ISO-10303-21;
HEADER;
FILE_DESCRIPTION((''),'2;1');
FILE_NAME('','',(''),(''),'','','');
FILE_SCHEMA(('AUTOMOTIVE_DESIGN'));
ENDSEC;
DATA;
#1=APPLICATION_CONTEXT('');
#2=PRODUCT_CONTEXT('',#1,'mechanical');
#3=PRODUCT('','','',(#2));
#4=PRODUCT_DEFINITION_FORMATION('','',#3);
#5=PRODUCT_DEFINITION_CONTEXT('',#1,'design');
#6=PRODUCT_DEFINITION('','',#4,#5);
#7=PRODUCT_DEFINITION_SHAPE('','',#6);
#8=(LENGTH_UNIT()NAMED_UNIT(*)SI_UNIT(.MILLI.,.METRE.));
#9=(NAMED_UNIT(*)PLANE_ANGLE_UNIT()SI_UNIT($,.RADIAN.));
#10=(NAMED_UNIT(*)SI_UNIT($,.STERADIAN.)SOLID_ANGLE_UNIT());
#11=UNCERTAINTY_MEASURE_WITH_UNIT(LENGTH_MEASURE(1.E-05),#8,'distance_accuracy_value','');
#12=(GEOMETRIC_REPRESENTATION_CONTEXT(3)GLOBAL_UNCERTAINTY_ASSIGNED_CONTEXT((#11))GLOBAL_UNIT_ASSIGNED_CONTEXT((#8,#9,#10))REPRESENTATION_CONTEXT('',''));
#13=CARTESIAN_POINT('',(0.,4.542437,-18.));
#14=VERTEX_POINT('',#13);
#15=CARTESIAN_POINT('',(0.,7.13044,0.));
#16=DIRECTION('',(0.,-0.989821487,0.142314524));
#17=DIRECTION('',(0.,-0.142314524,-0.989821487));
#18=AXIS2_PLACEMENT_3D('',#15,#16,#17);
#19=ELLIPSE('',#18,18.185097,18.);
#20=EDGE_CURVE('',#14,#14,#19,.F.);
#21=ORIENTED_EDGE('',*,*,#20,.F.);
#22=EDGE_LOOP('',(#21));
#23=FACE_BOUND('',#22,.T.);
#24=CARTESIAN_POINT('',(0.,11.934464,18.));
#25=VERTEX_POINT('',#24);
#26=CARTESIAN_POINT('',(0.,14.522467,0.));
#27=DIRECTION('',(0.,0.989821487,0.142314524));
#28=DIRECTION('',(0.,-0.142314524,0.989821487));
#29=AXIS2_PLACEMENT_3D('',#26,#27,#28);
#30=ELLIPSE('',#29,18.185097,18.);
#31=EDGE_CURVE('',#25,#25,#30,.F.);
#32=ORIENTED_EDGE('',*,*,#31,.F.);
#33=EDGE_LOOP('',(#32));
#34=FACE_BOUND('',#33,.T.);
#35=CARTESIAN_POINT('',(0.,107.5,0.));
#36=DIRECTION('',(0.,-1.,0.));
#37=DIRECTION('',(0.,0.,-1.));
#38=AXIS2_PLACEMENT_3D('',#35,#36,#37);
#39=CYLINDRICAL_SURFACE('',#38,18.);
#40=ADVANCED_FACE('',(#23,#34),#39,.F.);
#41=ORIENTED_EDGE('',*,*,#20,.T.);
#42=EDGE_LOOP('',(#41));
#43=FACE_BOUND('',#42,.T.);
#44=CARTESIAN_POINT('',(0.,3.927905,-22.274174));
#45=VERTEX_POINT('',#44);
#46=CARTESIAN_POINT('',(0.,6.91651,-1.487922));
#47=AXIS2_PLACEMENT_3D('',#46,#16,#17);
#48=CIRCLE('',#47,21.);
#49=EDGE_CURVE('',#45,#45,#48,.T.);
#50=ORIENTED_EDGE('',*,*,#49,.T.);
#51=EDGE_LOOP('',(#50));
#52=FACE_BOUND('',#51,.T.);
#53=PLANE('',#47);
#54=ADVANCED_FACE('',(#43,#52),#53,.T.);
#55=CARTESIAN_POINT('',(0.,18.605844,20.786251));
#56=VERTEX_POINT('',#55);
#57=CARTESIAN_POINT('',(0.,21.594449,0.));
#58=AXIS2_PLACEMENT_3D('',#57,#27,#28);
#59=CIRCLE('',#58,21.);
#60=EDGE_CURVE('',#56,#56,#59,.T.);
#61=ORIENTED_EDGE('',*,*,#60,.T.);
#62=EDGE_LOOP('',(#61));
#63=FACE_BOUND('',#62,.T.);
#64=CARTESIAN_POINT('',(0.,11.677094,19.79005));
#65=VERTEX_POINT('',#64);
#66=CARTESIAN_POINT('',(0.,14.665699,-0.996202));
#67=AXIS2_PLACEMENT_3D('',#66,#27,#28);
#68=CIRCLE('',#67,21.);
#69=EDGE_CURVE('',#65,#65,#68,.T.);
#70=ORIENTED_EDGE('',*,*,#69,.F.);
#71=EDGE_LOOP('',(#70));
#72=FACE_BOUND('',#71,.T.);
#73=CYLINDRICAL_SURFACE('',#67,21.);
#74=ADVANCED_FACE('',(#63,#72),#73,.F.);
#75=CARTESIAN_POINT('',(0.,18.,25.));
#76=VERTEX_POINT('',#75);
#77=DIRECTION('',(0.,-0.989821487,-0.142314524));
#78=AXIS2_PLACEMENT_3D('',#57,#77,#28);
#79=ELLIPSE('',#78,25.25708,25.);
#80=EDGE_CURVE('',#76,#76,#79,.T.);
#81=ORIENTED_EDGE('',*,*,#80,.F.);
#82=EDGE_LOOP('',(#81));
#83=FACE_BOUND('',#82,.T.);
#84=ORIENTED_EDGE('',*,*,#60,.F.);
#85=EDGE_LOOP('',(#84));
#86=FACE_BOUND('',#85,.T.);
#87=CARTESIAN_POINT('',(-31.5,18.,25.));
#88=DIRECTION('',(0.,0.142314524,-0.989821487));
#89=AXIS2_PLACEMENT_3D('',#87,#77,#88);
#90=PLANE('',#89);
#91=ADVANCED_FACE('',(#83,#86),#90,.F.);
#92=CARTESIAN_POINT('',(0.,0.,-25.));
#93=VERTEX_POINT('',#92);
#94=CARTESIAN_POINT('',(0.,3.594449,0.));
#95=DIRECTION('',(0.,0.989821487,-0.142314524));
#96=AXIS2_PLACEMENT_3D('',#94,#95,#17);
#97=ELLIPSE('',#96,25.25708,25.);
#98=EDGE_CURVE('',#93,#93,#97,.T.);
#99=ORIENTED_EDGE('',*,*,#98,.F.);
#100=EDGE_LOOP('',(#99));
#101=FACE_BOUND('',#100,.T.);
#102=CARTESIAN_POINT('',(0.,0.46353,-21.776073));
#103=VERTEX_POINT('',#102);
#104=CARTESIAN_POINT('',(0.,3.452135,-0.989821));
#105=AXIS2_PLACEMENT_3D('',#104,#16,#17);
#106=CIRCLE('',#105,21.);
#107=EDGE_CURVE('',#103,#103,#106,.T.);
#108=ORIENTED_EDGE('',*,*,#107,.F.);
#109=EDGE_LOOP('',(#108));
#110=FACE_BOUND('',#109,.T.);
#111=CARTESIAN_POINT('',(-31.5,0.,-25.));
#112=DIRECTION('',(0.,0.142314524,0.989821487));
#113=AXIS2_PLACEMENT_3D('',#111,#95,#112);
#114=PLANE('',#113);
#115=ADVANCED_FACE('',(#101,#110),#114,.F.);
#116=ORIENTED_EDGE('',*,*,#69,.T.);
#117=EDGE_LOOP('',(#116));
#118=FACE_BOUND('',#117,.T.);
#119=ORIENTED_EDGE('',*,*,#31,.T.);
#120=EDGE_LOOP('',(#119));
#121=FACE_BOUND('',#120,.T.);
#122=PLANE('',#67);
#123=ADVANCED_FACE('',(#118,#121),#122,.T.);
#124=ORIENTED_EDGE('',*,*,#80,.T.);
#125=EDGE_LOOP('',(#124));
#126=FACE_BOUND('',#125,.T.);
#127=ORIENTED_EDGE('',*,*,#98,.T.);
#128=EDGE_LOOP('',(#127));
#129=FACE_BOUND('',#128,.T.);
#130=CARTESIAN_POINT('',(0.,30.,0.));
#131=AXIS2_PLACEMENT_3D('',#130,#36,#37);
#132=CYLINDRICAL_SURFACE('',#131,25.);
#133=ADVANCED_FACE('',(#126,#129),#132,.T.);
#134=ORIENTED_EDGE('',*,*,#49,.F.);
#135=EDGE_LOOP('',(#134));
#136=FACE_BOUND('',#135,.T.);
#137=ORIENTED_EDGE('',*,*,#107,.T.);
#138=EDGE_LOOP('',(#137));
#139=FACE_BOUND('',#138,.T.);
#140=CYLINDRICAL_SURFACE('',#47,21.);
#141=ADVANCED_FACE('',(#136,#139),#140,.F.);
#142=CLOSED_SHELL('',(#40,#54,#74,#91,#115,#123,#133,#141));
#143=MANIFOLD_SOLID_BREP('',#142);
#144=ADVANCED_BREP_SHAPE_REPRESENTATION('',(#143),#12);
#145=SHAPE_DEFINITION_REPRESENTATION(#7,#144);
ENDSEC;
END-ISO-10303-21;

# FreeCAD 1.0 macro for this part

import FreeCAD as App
import Part
import Sketcher
from FreeCAD import Vector

doc = App.newDocument("Part")
params = doc.addObject("Spreadsheet::Sheet", "Params")
for row, (alias, value) in enumerate([
    ("sketch1_diameter", "50 mm"),
    ("pad1_length", "30 mm"),
    ("sketch2_height", "50 mm"),
    ("pocket1_length", "63 mm"),
    ("sketch3_diameter", "42 mm"),
    ("pocket2_length", "7 mm"),
    ("sketch4_diameter", "42 mm"),
    ("pocket3_length", "3.5 mm"),
    ("sketch5_diameter", "36 mm"),
    ("pocket4_length", "107.5 mm"),
], start=1):
    params.set(f"A{row}", alias)
    params.set(f"B{row}", "=" + value)
    params.setAlias(f"B{row}", alias)

body = doc.addObject("PartDesign::Body", "Body")

sketch1 = doc.addObject("Sketcher::SketchObject", "Sketch")
body.addObject(sketch1)
sketch1.AttachmentSupport = (doc.XZ_Plane, [""])
sketch1.MapMode = "FlatFace"
sketch1.addGeometry(Part.Circle(Vector(0, 0, 0), Vector(0, 0, 1), 25), False)
sketch1.addConstraint(Sketcher.Constraint("Coincident", 0, 3, -1, 1))
sketch1.addConstraint(Sketcher.Constraint("Diameter", 0, 50.0))
sketch1.setExpression("Constraints[1]", "Params.sketch1_diameter")
pad1 = doc.addObject("PartDesign::Pad", "Pad")
body.addObject(pad1)
pad1.Profile = sketch1
pad1.setExpression("Length", "Params.pad1_length")
pad1.Reversed = True

sketch2 = doc.addObject("Sketcher::SketchObject", "Sketch001")
body.addObject(sketch2)
sketch2.AttachmentSupport = (doc.YZ_Plane, [""])
sketch2.MapMode = "FlatFace"
sketch2.addGeometry(Part.LineSegment(Vector(18, 25, 0), Vector(25, -25, 0)), False)
sketch2.addGeometry(Part.LineSegment(Vector(25, -25, 0), Vector(40, -25, 0)), False)
sketch2.addGeometry(Part.LineSegment(Vector(40, -25, 0), Vector(40, 25, 0)), False)
sketch2.addGeometry(Part.LineSegment(Vector(40, 25, 0), Vector(18, 25, 0)), False)
sketch2.addGeometry(Part.LineSegment(Vector(0, -25, 0), Vector(7, 25, 0)), False)
sketch2.addGeometry(Part.LineSegment(Vector(7, 25, 0), Vector(-17, 25, 0)), False)
sketch2.addGeometry(Part.LineSegment(Vector(-17, 25, 0), Vector(-17, -25, 0)), False)
sketch2.addGeometry(Part.LineSegment(Vector(-17, -25, 0), Vector(0, -25, 0)), False)
sketch2.addConstraint(Sketcher.Constraint("Coincident", 0, 2, 1, 1))
sketch2.addConstraint(Sketcher.Constraint("Coincident", 1, 2, 2, 1))
sketch2.addConstraint(Sketcher.Constraint("Coincident", 2, 2, 3, 1))
sketch2.addConstraint(Sketcher.Constraint("Coincident", 3, 2, 0, 1))
sketch2.addConstraint(Sketcher.Constraint("Coincident", 4, 2, 5, 1))
sketch2.addConstraint(Sketcher.Constraint("Coincident", 5, 2, 6, 1))
sketch2.addConstraint(Sketcher.Constraint("Coincident", 6, 2, 7, 1))
sketch2.addConstraint(Sketcher.Constraint("Coincident", 7, 2, 4, 1))
sketch2.addConstraint(Sketcher.Constraint("Horizontal", 1))
sketch2.addConstraint(Sketcher.Constraint("Vertical", 2))
sketch2.addConstraint(Sketcher.Constraint("Horizontal", 3))
sketch2.addConstraint(Sketcher.Constraint("Horizontal", 5))
sketch2.addConstraint(Sketcher.Constraint("Vertical", 6))
sketch2.addConstraint(Sketcher.Constraint("Horizontal", 7))
sketch2.addConstraint(Sketcher.Constraint("PointOnObject", 7, 2, -2))
sketch2.addConstraint(Sketcher.Constraint("Horizontal", 3, 2, 4, 2))
sketch2.addConstraint(Sketcher.Constraint("Horizontal", 1, 2, 6, 2))
sketch2.addConstraint(Sketcher.Constraint("Equal", 0, 4))
sketch2.addConstraint(Sketcher.Constraint("DistanceY", 2, 1, 2, 2, 50.0))
sketch2.addConstraint(Sketcher.Constraint("DistanceY", 0, 2, -1, 1, 25.0))
sketch2.addConstraint(Sketcher.Constraint("DistanceX", -1, 1, 3, 2, 18.0))
sketch2.addConstraint(Sketcher.Constraint("DistanceX", 7, 1, 7, 2, 17.358468))
sketch2.addConstraint(Sketcher.Constraint("DistanceX", -1, 1, 0, 2, 25.188899))
sketch2.addConstraint(Sketcher.Constraint("DistanceX", 1, 1, 1, 2, 14.321136))
sketch2.setExpression("Constraints[18]", "Params.sketch2_height")
pocket1 = doc.addObject("PartDesign::Pocket", "Pocket")
body.addObject(pocket1)
pocket1.Profile = sketch2
pocket1.setExpression("Length", "Params.pocket1_length")
pocket1.Midplane = True

sketch3 = doc.addObject("Sketcher::SketchObject", "Sketch002")
body.addObject(sketch3)
sketch3.Placement = App.Placement(Vector(0, 21.157088, 3.041923), App.Rotation(Vector(1, 0, 0), Vector(0, 0.142314524, -0.989821487), Vector(0, 0.989821487, 0.142314524), "ZXY"))
sketch3.addGeometry(Part.Circle(Vector(0, 3, 0), Vector(0, 0, 1), 21), False)
sketch3.addConstraint(Sketcher.Constraint("PointOnObject", 0, 3, -2))
sketch3.addConstraint(Sketcher.Constraint("Diameter", 0, 42.0))
sketch3.addConstraint(Sketcher.Constraint("DistanceY", -1, 1, 0, 3, 3.073204))
sketch3.setExpression("Constraints[1]", "Params.sketch3_diameter")
pocket2 = doc.addObject("PartDesign::Pocket", "Pocket001")
body.addObject(pocket2)
pocket2.Profile = sketch3
pocket2.setExpression("Length", "Params.pocket2_length")

sketch4 = doc.addObject("Sketcher::SketchObject", "Sketch003")
body.addObject(sketch4)
sketch4.Placement = App.Placement(Vector(0, 3.521649, -0.506336), App.Rotation(Vector(-1, 0, 0), Vector(0, -0.142314524, -0.989821487), Vector(0, -0.989821487, 0.142314524), "ZXY"))
sketch4.addGeometry(Part.Circle(Vector(0, 0, 0), Vector(0, 0, 1), 21), False)
sketch4.addConstraint(Sketcher.Constraint("PointOnObject", 0, 3, -2))
sketch4.addConstraint(Sketcher.Constraint("Diameter", 0, 42.0))
sketch4.addConstraint(Sketcher.Constraint("DistanceY", -1, 1, 0, 3, 0.488458))
sketch4.setExpression("Constraints[1]", "Params.sketch4_diameter")
pocket3 = doc.addObject("PartDesign::Pocket", "Pocket002")
body.addObject(pocket3)
pocket3.Profile = sketch4
pocket3.setExpression("Length", "Params.pocket3_length")

sketch5 = doc.addObject("Sketcher::SketchObject", "Sketch004")
body.addObject(sketch5)
sketch5.AttachmentSupport = (doc.XZ_Plane, [""])
sketch5.MapMode = "FlatFace"
sketch5.addGeometry(Part.Circle(Vector(0, 0, 0), Vector(0, 0, 1), 18), False)
sketch5.addConstraint(Sketcher.Constraint("Coincident", 0, 3, -1, 1))
sketch5.addConstraint(Sketcher.Constraint("Diameter", 0, 36.0))
sketch5.setExpression("Constraints[1]", "Params.sketch5_diameter")
pocket4 = doc.addObject("PartDesign::Pocket", "Pocket003")
body.addObject(pocket4)
pocket4.Profile = sketch5
pocket4.setExpression("Length", "Params.pocket4_length")

doc.recompute()
